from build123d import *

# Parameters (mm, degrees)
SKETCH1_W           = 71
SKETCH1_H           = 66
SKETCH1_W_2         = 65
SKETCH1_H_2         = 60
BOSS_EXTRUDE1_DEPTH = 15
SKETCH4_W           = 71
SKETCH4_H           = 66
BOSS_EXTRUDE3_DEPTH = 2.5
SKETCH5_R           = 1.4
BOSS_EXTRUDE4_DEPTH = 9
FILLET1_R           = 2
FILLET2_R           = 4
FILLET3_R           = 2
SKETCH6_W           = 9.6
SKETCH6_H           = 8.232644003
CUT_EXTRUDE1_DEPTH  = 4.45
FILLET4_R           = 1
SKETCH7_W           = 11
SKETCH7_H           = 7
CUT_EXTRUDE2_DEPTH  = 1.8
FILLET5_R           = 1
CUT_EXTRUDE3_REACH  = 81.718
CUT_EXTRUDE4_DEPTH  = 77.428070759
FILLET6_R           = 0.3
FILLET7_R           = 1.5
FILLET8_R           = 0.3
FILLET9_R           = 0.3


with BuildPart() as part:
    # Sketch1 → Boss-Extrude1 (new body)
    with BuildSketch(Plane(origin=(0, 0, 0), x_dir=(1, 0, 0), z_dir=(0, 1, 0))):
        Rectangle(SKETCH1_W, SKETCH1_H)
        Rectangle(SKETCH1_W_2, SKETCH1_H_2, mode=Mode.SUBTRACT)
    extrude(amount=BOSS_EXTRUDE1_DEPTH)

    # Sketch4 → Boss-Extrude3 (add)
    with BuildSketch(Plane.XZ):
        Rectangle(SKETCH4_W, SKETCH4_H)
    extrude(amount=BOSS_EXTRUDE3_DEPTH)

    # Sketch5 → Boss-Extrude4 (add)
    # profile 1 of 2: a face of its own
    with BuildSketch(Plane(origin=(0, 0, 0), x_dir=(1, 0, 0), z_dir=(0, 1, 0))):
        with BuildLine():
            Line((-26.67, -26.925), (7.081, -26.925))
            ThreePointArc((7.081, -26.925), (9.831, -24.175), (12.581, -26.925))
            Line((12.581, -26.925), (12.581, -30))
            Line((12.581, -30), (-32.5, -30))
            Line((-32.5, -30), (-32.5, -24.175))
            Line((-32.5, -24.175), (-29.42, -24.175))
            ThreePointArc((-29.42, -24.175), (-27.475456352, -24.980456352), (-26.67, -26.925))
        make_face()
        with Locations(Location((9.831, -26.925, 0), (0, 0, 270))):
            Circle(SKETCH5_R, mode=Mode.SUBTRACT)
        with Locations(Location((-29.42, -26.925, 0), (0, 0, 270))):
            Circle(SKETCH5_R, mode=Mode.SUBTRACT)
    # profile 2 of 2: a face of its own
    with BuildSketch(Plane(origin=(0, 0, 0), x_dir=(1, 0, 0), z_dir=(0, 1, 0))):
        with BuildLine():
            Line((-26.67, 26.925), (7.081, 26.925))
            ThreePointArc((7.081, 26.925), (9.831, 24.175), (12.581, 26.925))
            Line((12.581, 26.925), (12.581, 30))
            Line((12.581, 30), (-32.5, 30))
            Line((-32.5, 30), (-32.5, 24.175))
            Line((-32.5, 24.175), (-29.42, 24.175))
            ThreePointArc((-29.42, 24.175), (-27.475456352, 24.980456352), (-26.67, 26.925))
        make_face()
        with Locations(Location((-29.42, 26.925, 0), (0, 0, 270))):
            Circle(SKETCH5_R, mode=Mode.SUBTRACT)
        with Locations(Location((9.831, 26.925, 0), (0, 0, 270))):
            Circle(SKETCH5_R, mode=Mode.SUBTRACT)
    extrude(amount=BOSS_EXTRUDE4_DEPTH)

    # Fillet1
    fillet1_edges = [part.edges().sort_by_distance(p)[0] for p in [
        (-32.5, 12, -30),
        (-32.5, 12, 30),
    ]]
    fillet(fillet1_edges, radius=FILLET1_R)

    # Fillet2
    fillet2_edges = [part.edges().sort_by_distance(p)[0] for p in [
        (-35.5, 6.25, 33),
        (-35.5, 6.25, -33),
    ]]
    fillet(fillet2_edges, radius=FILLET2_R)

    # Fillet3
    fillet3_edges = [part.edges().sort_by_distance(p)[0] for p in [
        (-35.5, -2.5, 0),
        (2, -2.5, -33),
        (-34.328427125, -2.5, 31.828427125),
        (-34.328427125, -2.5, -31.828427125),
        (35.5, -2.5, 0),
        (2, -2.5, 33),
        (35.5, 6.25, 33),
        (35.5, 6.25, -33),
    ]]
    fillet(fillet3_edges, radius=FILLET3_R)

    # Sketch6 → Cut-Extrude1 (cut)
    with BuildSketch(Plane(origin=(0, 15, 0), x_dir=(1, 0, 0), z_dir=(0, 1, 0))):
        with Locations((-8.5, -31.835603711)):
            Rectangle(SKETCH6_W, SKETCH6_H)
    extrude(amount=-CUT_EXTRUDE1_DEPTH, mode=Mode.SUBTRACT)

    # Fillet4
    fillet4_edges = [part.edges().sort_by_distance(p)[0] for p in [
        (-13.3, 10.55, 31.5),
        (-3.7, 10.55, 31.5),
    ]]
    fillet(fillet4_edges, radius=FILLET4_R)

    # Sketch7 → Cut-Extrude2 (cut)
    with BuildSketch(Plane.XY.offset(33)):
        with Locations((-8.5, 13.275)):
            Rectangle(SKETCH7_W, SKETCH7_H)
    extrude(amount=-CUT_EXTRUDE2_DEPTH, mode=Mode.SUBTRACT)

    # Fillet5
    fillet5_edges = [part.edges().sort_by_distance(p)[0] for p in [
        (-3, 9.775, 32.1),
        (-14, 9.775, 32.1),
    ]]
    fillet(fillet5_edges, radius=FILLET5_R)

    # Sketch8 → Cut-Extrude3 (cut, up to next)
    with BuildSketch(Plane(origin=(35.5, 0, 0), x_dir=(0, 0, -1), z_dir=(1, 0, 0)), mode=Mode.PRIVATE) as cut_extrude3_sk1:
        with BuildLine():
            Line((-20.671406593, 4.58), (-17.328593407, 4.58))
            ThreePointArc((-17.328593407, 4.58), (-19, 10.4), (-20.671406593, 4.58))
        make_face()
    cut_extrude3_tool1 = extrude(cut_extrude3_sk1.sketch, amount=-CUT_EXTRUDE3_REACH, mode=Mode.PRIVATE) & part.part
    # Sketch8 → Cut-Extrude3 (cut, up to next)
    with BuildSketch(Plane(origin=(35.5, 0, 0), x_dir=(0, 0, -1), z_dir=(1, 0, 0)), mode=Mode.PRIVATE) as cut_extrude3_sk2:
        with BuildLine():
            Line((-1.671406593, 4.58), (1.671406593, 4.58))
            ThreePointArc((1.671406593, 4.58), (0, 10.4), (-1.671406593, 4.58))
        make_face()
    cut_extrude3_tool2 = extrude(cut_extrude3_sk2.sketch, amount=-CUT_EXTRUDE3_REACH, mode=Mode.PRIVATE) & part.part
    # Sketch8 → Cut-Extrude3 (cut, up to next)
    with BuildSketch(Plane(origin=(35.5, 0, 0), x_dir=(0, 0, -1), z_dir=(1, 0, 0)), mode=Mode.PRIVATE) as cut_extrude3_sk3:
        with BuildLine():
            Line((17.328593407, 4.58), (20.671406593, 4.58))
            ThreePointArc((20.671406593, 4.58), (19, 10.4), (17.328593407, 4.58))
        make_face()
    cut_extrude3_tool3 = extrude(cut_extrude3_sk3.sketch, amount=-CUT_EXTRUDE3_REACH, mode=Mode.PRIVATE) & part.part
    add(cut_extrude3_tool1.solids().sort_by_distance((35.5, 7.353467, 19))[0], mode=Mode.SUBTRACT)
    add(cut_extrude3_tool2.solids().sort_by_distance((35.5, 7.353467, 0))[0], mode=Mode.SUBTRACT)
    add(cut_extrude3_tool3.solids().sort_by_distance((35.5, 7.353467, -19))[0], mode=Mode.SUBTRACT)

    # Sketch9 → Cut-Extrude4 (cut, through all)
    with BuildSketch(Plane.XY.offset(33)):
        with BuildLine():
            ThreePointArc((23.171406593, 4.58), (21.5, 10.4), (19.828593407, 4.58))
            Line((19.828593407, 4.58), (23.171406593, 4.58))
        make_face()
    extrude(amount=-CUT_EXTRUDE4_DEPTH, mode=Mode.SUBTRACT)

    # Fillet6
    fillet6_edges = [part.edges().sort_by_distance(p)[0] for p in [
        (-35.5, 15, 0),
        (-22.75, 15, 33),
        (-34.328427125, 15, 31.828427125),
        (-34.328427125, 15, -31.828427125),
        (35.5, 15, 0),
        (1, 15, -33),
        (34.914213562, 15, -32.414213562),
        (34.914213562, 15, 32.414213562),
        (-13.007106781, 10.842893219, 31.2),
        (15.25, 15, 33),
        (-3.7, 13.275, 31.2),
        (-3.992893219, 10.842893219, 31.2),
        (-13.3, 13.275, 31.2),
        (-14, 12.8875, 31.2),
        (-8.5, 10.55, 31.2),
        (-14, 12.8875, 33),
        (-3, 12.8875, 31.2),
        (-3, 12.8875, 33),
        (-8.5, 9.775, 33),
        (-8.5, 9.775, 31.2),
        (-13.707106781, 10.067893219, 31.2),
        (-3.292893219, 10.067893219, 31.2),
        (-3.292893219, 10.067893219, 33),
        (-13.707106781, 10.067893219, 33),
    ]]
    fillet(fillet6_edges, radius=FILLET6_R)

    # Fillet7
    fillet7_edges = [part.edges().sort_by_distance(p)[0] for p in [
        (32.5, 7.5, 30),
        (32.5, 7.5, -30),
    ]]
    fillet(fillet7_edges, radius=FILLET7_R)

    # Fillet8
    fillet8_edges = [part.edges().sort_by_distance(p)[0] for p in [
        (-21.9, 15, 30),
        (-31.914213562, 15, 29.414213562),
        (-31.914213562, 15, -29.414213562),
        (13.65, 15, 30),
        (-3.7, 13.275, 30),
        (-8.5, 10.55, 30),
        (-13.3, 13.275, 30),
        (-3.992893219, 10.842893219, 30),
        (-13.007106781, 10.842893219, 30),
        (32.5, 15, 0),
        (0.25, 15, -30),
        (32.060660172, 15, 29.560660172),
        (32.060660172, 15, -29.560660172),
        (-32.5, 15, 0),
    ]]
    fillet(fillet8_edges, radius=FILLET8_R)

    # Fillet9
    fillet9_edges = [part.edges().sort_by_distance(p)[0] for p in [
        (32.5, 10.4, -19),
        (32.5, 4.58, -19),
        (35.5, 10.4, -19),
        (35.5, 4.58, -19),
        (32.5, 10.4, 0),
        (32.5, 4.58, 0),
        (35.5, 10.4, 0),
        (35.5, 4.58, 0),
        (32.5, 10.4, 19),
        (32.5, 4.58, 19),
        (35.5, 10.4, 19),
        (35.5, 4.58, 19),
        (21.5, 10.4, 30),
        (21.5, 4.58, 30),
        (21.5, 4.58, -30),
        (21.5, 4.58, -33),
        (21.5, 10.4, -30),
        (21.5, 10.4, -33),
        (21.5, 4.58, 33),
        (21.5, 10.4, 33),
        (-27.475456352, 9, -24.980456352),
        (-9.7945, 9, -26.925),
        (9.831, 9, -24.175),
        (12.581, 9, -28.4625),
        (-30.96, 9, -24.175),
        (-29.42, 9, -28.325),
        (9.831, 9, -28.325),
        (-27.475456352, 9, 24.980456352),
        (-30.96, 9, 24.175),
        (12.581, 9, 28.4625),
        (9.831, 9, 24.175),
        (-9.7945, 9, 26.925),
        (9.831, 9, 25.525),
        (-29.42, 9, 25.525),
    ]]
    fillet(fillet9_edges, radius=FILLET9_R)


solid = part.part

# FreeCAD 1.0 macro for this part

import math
import FreeCAD as App
import Part
import Sketcher

V = App.Vector


def edges_at(feature, points):
    """Names of the edges that pass closest to the given points."""
    edges = feature.Shape.Edges
    near = lambda p: min(range(len(edges)), key=lambda i: edges[i].distToShape(Part.Vertex(*p))[0])
    return sorted({f"Edge{near(p) + 1}" for p in points})


def add_polygon(sketch, points):
    """Adds a closed chain of lines whose ends are joined by coincident constraints."""
    first, n = sketch.GeometryCount, len(points)
    for a, b in zip(points, points[1:] + points[:1]):
        sketch.addGeometry(Part.LineSegment(App.Vector(*a, 0), App.Vector(*b, 0)), False)
    for i in range(n):
        sketch.addConstraint(Sketcher.Constraint("Coincident", first + i, 2, first + (i + 1) % n, 1))

doc = App.newDocument("Part")
body = doc.addObject("PartDesign::Body", "Body")

# Sketch on XZ plane
sketch1 = body.newObject("Sketcher::SketchObject", "Sketch")
sketch1.AttachmentSupport = (doc.getObject("XZ_Plane"), [""])
sketch1.MapMode = "FlatFace"
add_polygon(sketch1, [(-36, -33), (-36, 33), (36, 33), (36, -33)])  # lines 0-3
add_polygon(sketch1, [(32, 30), (-32, 30), (-32, -30), (32, -30)])  # lines 4-7
sketch1.addConstraint([
    Sketcher.Constraint("Vertical", 0),
    Sketcher.Constraint("Horizontal", 1),
    Sketcher.Constraint("Vertical", 2),
    Sketcher.Constraint("Horizontal", 3),
    Sketcher.Constraint("Horizontal", 4),
    Sketcher.Constraint("Vertical", 5),
    Sketcher.Constraint("Horizontal", 6),
    Sketcher.Constraint("Vertical", 7),
    Sketcher.Constraint("Symmetric", 0, 2, 2, 2, -1, 1),
    Sketcher.Constraint("Symmetric", 4, 2, 6, 2, -1, 1),
    Sketcher.Constraint("DistanceX", 1, 1, 1, 2, 71.0),
    Sketcher.Constraint("DistanceX", 4, 2, 4, 1, 65.0),
    Sketcher.Constraint("DistanceY", 0, 1, 0, 2, 66.0),
    Sketcher.Constraint("DistanceY", 5, 2, 5, 1, 60.0),
])
pad1 = body.newObject("PartDesign::Pad", "Pad")
pad1.Profile = sketch1
pad1.Length = 15
pad1.Reversed = True

# Sketch on XZ plane
sketch2 = body.newObject("Sketcher::SketchObject", "Sketch001")
sketch2.AttachmentSupport = (doc.getObject("XZ_Plane"), [""])
sketch2.MapMode = "FlatFace"
add_polygon(sketch2, [(-36, 33), (-36, -33), (36, -33), (36, 33)])  # lines 0-3
sketch2.addConstraint([
    Sketcher.Constraint("Vertical", 0),
    Sketcher.Constraint("Horizontal", 1),
    Sketcher.Constraint("Vertical", 2),
    Sketcher.Constraint("Horizontal", 3),
    Sketcher.Constraint("Symmetric", 0, 2, 2, 2, -1, 1),
    Sketcher.Constraint("DistanceX", 1, 1, 1, 2, 71.0),
    Sketcher.Constraint("DistanceY", 0, 2, 0, 1, 66.0),
])
pad2 = body.newObject("PartDesign::Pad", "Pad001")
pad2.Profile = sketch2
pad2.Length = 2.5

# Sketch on XZ plane
sketch3 = body.newObject("Sketcher::SketchObject", "Sketch002")
sketch3.AttachmentSupport = (doc.getObject("XZ_Plane"), [""])
sketch3.MapMode = "FlatFace"
sketch3.addGeometry([
    Part.LineSegment(V(7.1, 26.9, 0), V(-26.7, 26.9, 0)),  # 0
    Part.ArcOfCircle(Part.Circle(V(-29.4, 26.9, 0), V(0, 0, 1), 2.8), math.radians(-90), math.radians(0)),  # 1
    Part.LineSegment(V(-29.4, 24.2, 0), V(-32.5, 24.2, 0)),  # 2
    Part.LineSegment(V(-32.5, 24.2, 0), V(-32.5, 30, 0)),  # 3
    Part.LineSegment(V(-32.5, 30, 0), V(12.6, 30, 0)),  # 4
    Part.LineSegment(V(12.6, 30, 0), V(12.6, 26.9, 0)),  # 5
    Part.ArcOfCircle(Part.Circle(V(9.8, 26.9, 0), V(0, 0, 1), 2.8), math.radians(180), math.radians(360)),  # 6
    Part.Circle(V(9.8, 26.9, 0), V(0, 0, 1), 1.4),  # 7
    Part.Circle(V(-29.4, 26.9, 0), V(0, 0, 1), 1.4),  # 8
    Part.LineSegment(V(-26.7, -26.9, 0), V(7.1, -26.9, 0)),  # 9
    Part.ArcOfCircle(Part.Circle(V(9.8, -26.9, 0), V(0, 0, 1), 2.8), math.radians(0), math.radians(180)),  # 10
    Part.LineSegment(V(12.6, -26.9, 0), V(12.6, -30, 0)),  # 11
    Part.LineSegment(V(12.6, -30, 0), V(-32.5, -30, 0)),  # 12
    Part.LineSegment(V(-32.5, -30, 0), V(-32.5, -24.2, 0)),  # 13
    Part.LineSegment(V(-32.5, -24.2, 0), V(-29.4, -24.2, 0)),  # 14
    Part.ArcOfCircle(Part.Circle(V(-29.4, -26.9, 0), V(0, 0, 1), 2.8), math.radians(0), math.radians(90)),  # 15
    Part.Circle(V(-29.4, -26.9, 0), V(0, 0, 1), 1.4),  # 16
    Part.Circle(V(9.8, -26.9, 0), V(0, 0, 1), 1.4),  # 17
], False)
sketch3.addConstraint([
    Sketcher.Constraint("Coincident", 0, 2, 1, 2),
    Sketcher.Constraint("Tangent", 1, 1, 2, 1),
    Sketcher.Constraint("Coincident", 2, 2, 3, 1),
    Sketcher.Constraint("Coincident", 3, 2, 4, 1),
    Sketcher.Constraint("Coincident", 4, 2, 5, 1),
    Sketcher.Constraint("Tangent", 5, 2, 6, 2),
    Sketcher.Constraint("Coincident", 6, 1, 0, 1),
    Sketcher.Constraint("Coincident", 9, 2, 10, 2),
    Sketcher.Constraint("Tangent", 10, 1, 11, 1),
    Sketcher.Constraint("Coincident", 11, 2, 12, 1),
    Sketcher.Constraint("Coincident", 12, 2, 13, 1),
    Sketcher.Constraint("Coincident", 13, 2, 14, 1),
    Sketcher.Constraint("Tangent", 14, 2, 15, 2),
    Sketcher.Constraint("Coincident", 15, 1, 9, 1),
    Sketcher.Constraint("Horizontal", 0),
    Sketcher.Constraint("Horizontal", 2),
    Sketcher.Constraint("Vertical", 3),
    Sketcher.Constraint("Horizontal", 4),
    Sketcher.Constraint("Vertical", 5),
    Sketcher.Constraint("Horizontal", 9),
    Sketcher.Constraint("Vertical", 11),
    Sketcher.Constraint("Horizontal", 12),
    Sketcher.Constraint("Vertical", 13),
    Sketcher.Constraint("Horizontal", 14),
    Sketcher.Constraint("Coincident", 7, 3, 6, 3),
    Sketcher.Constraint("Coincident", 8, 3, 1, 3),
    Sketcher.Constraint("Coincident", 16, 3, 15, 3),
    Sketcher.Constraint("Coincident", 17, 3, 10, 3),
    Sketcher.Constraint("Equal", 1, 6),
    Sketcher.Constraint("Equal", 7, 8),
    Sketcher.Constraint("Equal", 6, 10),
    Sketcher.Constraint("Equal", 10, 15),
    Sketcher.Constraint("Equal", 8, 16),
    Sketcher.Constraint("Equal", 16, 17),
    Sketcher.Constraint("Symmetric", 6, 3, 10, 3, -1),
    Sketcher.Constraint("Symmetric", 1, 3, 15, 3, -1),
    Sketcher.Constraint("Symmetric", 3, 2, 12, 2, -1),
    Sketcher.Constraint("Horizontal", 1, 3, 6, 3),
    Sketcher.Constraint("Horizontal", 8, 3, 0, 2),
    Sketcher.Constraint("Horizontal", 17, 3, 9, 2),
    Sketcher.Constraint("Diameter", 7, 2.8),
    Sketcher.Constraint("Radius", 1, 2.75),
    Sketcher.Constraint("DistanceY", -1, 1, 3, 2, 30.0),
    Sketcher.Constraint("DistanceX", 2, 2, 2, 1, 3.08),
    Sketcher.Constraint("DistanceX", 2, 2, -1, 1, 32.5),
    Sketcher.Constraint("DistanceX", 0, 2, 0, 1, 33.751),
    Sketcher.Constraint("DistanceY", 3, 1, 3, 2, 5.825),
])
pad3 = body.newObject("PartDesign::Pad", "Pad002")
pad3.Profile = sketch3
pad3.Length = 9
pad3.Reversed = True
doc.recompute()

fillet = body.newObject("PartDesign::Fillet", "Fillet")
fillet.Base = (pad3, edges_at(pad3, [(-32.5, 12, -30), (-32.5, 12, 30)]))
fillet.Radius = 2
doc.recompute()

fillet2 = body.newObject("PartDesign::Fillet", "Fillet001")
fillet2.Base = (fillet, edges_at(fillet, [(-35.5, 6.25, 33), (-35.5, 6.25, -33)]))
fillet2.Radius = 4
doc.recompute()

fillet3 = body.newObject("PartDesign::Fillet", "Fillet002")
fillet3.Base = (fillet2, edges_at(fillet2, [
    (-35.5, -2.5, 0),
    (2, -2.5, -33),
    (-34.328, -2.5, 31.828),
    (-34.328, -2.5, -31.828),
    (35.5, -2.5, 0),
    (2, -2.5, 33),
    (35.5, 6.25, 33),
    (35.5, 6.25, -33),
]))
fillet3.Radius = 2

# Sketch on XZ plane
sketch4 = body.newObject("Sketcher::SketchObject", "Sketch003")
sketch4.AttachmentSupport = (doc.getObject("XZ_Plane"), [""])
sketch4.MapMode = "FlatFace"
sketch4.AttachmentOffset = App.Placement(V(0, 0, -15), App.Rotation())
add_polygon(sketch4, [(-13, 28), (-13, 36), (-4, 36), (-4, 28)])  # lines 0-3
sketch4.addConstraint([
    Sketcher.Constraint("Vertical", 0),
    Sketcher.Constraint("Horizontal", 1),
    Sketcher.Constraint("Vertical", 2),
    Sketcher.Constraint("Horizontal", 3),
    Sketcher.Constraint("DistanceX", 1, 1, 1, 2, 9.6),
    Sketcher.Constraint("DistanceX", 0, 2, -1, 1, 13.3),
    Sketcher.Constraint("DistanceY", 0, 1, 0, 2, 8.232644),
    Sketcher.Constraint("DistanceY", -1, 1, 2, 2, 27.719282),
])
pocket1 = body.newObject("PartDesign::Pocket", "Pocket")
pocket1.Profile = sketch4
pocket1.Length = 4.45
pocket1.Reversed = True
doc.recompute()

fillet4 = body.newObject("PartDesign::Fillet", "Fillet003")
fillet4.Base = (pocket1, edges_at(pocket1, [(-13.3, 10.55, 31.5), (-3.7, 10.55, 31.5)]))
fillet4.Radius = 1

# Sketch on XY plane
sketch5 = body.newObject("Sketcher::SketchObject", "Sketch004")
sketch5.AttachmentSupport = (doc.getObject("XY_Plane"), [""])
sketch5.MapMode = "FlatFace"
sketch5.AttachmentOffset = App.Placement(V(0, 0, 33), App.Rotation())
add_polygon(sketch5, [(-14, 17), (-14, 10), (-3, 10), (-3, 17)])  # lines 0-3
sketch5.addConstraint([
    Sketcher.Constraint("Vertical", 0),
    Sketcher.Constraint("Horizontal", 1),
    Sketcher.Constraint("Vertical", 2),
    Sketcher.Constraint("Horizontal", 3),
    Sketcher.Constraint("DistanceX", 1, 1, 1, 2, 11.0),
    Sketcher.Constraint("DistanceY", 0, 2, 0, 1, 7.0),
    Sketcher.Constraint("DistanceX", 0, 2, -1, 1, 14.0),
    Sketcher.Constraint("DistanceY", -1, 1, 0, 2, 9.775),
])
pocket2 = body.newObject("PartDesign::Pocket", "Pocket001")
pocket2.Profile = sketch5
pocket2.Length = 1.8
doc.recompute()

fillet5 = body.newObject("PartDesign::Fillet", "Fillet004")
fillet5.Base = (pocket2, edges_at(pocket2, [(-3, 9.775, 32.1), (-14, 9.775, 32.1)]))
fillet5.Radius = 1

# Sketch on YZ plane
sketch6 = body.newObject("Sketcher::SketchObject", "Sketch005")
sketch6.AttachmentSupport = (doc.getObject("YZ_Plane"), [""])
sketch6.MapMode = "FlatFace"
sketch6.AttachmentOffset = App.Placement(V(0, 0, 35.5), App.Rotation())
sketch6.addGeometry([
    Part.LineSegment(V(4.6, 20.7, 0), V(4.6, 17.3, 0)),
    Part.ArcOfCircle(Part.Circle(V(7.2, 19, 0), V(0, 0, 1), 3.1), math.radians(-148), math.radians(148)),
], False)
sketch6.addConstraint([
    Sketcher.Constraint("Coincident", 0, 1, 1, 2),
    Sketcher.Constraint("Coincident", 1, 1, 0, 2),
    Sketcher.Constraint("Vertical", 0),
    Sketcher.Constraint("Radius", 1, 3.15),
    Sketcher.Constraint("DistanceY", -1, 1, 1, 3, 19.0),
    Sketcher.Constraint("DistanceX", -1, 1, 1, 3, 7.25),
    Sketcher.Constraint("DistanceX", -1, 1, 0, 1, 4.58),
])
pocket3 = body.newObject("PartDesign::Pocket", "Pocket002")
pocket3.Profile = sketch6
pocket3.Type = "UpToFirst"

# Sketch on YZ plane
sketch7 = body.newObject("Sketcher::SketchObject", "Sketch006")
sketch7.AttachmentSupport = (doc.getObject("YZ_Plane"), [""])
sketch7.MapMode = "FlatFace"
sketch7.AttachmentOffset = App.Placement(V(0, 0, 35.5), App.Rotation())
sketch7.addGeometry([
    Part.LineSegment(V(4.6, 1.7, 0), V(4.6, -1.7, 0)),
    Part.ArcOfCircle(Part.Circle(V(7.2, 0, 0), V(0, 0, 1), 3.1), math.radians(-148), math.radians(148)),
], False)
sketch7.addConstraint([
    Sketcher.Constraint("Coincident", 0, 1, 1, 2),
    Sketcher.Constraint("Coincident", 1, 1, 0, 2),
    Sketcher.Constraint("Vertical", 0),
    Sketcher.Constraint("PointOnObject", 1, 3, -1),
    Sketcher.Constraint("Radius", 1, 3.15),
    Sketcher.Constraint("DistanceX", -1, 1, 1, 3, 7.25),
    Sketcher.Constraint("DistanceX", -1, 1, 0, 1, 4.58),
])
pocket4 = body.newObject("PartDesign::Pocket", "Pocket003")
pocket4.Profile = sketch7
pocket4.Type = "UpToFirst"

# Sketch on YZ plane
sketch8 = body.newObject("Sketcher::SketchObject", "Sketch007")
sketch8.AttachmentSupport = (doc.getObject("YZ_Plane"), [""])
sketch8.MapMode = "FlatFace"
sketch8.AttachmentOffset = App.Placement(V(0, 0, 35.5), App.Rotation())
sketch8.addGeometry([
    Part.LineSegment(V(4.6, -17.3, 0), V(4.6, -20.7, 0)),
    Part.ArcOfCircle(Part.Circle(V(7.2, -19, 0), V(0, 0, 1), 3.1), math.radians(-148), math.radians(148)),
], False)
sketch8.addConstraint([
    Sketcher.Constraint("Coincident", 0, 1, 1, 2),
    Sketcher.Constraint("Coincident", 1, 1, 0, 2),
    Sketcher.Constraint("Vertical", 0),
    Sketcher.Constraint("Radius", 1, 3.15),
    Sketcher.Constraint("DistanceY", 1, 3, -1, 1, 19.0),
    Sketcher.Constraint("DistanceX", -1, 1, 1, 3, 7.25),
    Sketcher.Constraint("DistanceX", -1, 1, 0, 1, 4.58),
])
pocket5 = body.newObject("PartDesign::Pocket", "Pocket004")
pocket5.Profile = sketch8
pocket5.Type = "UpToFirst"

# Sketch on XY plane
sketch9 = body.newObject("Sketcher::SketchObject", "Sketch008")
sketch9.AttachmentSupport = (doc.getObject("XY_Plane"), [""])
sketch9.MapMode = "FlatFace"
sketch9.AttachmentOffset = App.Placement(V(0, 0, 33), App.Rotation())
sketch9.addGeometry([
    Part.ArcOfCircle(Part.Circle(V(21.5, 7.2, 0), V(0, 0, 1), 3.1), math.radians(-58), math.radians(238)),
    Part.LineSegment(V(19.8, 4.6, 0), V(23.2, 4.6, 0)),
], False)
sketch9.addConstraint([
    Sketcher.Constraint("Coincident", 0, 1, 1, 2),
    Sketcher.Constraint("Coincident", 1, 1, 0, 2),
    Sketcher.Constraint("Horizontal", 1),
    Sketcher.Constraint("Radius", 0, 3.15),
    Sketcher.Constraint("DistanceX", -1, 1, 0, 3, 21.5),
    Sketcher.Constraint("DistanceY", -1, 1, 0, 3, 7.25),
    Sketcher.Constraint("DistanceY", -1, 1, 0, 1, 4.58),
])
pocket6 = body.newObject("PartDesign::Pocket", "Pocket005")
pocket6.Profile = sketch9
pocket6.Type = "ThroughAll"
doc.recompute()

fillet6 = body.newObject("PartDesign::Fillet", "Fillet005")
fillet6.Base = (pocket6, edges_at(pocket6, [
    (-35.5, 15, 0),
    (-22.75, 15, 33),
    (-34.328, 15, 31.828),
    (-34.328, 15, -31.828),
    (35.5, 15, 0),
    (1, 15, -33),
    (34.914, 15, -32.414),
    (34.914, 15, 32.414),
    (-13.007, 10.843, 31.2),
    (15.25, 15, 33),
    (-3.7, 13.275, 31.2),
    (-3.993, 10.843, 31.2),
    (-13.3, 13.275, 31.2),
    (-14, 12.887, 31.2),
    (-8.5, 10.55, 31.2),
    (-14, 12.887, 33),
    (-3, 12.887, 31.2),
    (-3, 12.887, 33),
    (-8.5, 9.775, 33),
    (-8.5, 9.775, 31.2),
    (-13.707, 10.068, 31.2),
    (-3.293, 10.068, 31.2),
    (-3.293, 10.068, 33),
    (-13.707, 10.068, 33),
]))
fillet6.Radius = 0.3
doc.recompute()

fillet7 = body.newObject("PartDesign::Fillet", "Fillet006")
fillet7.Base = (fillet6, edges_at(fillet6, [(32.5, 7.5, 30), (32.5, 7.5, -30)]))
fillet7.Radius = 1.5
doc.recompute()

fillet8 = body.newObject("PartDesign::Fillet", "Fillet007")
fillet8.Base = (fillet7, edges_at(fillet7, [
    (-21.9, 15, 30),
    (-31.914, 15, 29.414),
    (-31.914, 15, -29.414),
    (13.65, 15, 30),
    (-3.7, 13.275, 30),
    (-8.5, 10.55, 30),
    (-13.3, 13.275, 30),
    (-3.993, 10.843, 30),
    (-13.007, 10.843, 30),
    (32.5, 15, 0),
    (0.25, 15, -30),
    (32.061, 15, 29.561),
    (32.061, 15, -29.561),
    (-32.5, 15, 0),
]))
fillet8.Radius = 0.3
doc.recompute()

fillet9 = body.newObject("PartDesign::Fillet", "Fillet008")
fillet9.Base = (fillet8, edges_at(fillet8, [
    (32.5, 10.4, -19),
    (32.5, 4.58, -19),
    (35.5, 10.4, -19),
    (35.5, 4.58, -19),
    (32.5, 10.4, 0),
    (32.5, 4.58, 0),
    (35.5, 10.4, 0),
    (35.5, 4.58, 0),
    (32.5, 10.4, 19),
    (32.5, 4.58, 19),
    (35.5, 10.4, 19),
    (35.5, 4.58, 19),
    (21.5, 10.4, 30),
    (21.5, 4.58, 30),
    (21.5, 4.58, -30),
    (21.5, 4.58, -33),
    (21.5, 10.4, -30),
    (21.5, 10.4, -33),
    (21.5, 4.58, 33),
    (21.5, 10.4, 33),
    (-27.475, 9, -24.98),
    (-9.794, 9, -26.925),
    (9.831, 9, -24.175),
    (12.581, 9, -28.462),
    (-30.96, 9, -24.175),
    (-29.42, 9, -28.325),
    (9.831, 9, -28.325),
    (-27.475, 9, 24.98),
    (-30.96, 9, 24.175),
    (12.581, 9, 28.462),
    (9.831, 9, 24.175),
    (-9.794, 9, 26.925),
    (9.831, 9, 25.525),
    (-29.42, 9, 25.525),
]))
fillet9.Radius = 0.3

doc.recompute()
